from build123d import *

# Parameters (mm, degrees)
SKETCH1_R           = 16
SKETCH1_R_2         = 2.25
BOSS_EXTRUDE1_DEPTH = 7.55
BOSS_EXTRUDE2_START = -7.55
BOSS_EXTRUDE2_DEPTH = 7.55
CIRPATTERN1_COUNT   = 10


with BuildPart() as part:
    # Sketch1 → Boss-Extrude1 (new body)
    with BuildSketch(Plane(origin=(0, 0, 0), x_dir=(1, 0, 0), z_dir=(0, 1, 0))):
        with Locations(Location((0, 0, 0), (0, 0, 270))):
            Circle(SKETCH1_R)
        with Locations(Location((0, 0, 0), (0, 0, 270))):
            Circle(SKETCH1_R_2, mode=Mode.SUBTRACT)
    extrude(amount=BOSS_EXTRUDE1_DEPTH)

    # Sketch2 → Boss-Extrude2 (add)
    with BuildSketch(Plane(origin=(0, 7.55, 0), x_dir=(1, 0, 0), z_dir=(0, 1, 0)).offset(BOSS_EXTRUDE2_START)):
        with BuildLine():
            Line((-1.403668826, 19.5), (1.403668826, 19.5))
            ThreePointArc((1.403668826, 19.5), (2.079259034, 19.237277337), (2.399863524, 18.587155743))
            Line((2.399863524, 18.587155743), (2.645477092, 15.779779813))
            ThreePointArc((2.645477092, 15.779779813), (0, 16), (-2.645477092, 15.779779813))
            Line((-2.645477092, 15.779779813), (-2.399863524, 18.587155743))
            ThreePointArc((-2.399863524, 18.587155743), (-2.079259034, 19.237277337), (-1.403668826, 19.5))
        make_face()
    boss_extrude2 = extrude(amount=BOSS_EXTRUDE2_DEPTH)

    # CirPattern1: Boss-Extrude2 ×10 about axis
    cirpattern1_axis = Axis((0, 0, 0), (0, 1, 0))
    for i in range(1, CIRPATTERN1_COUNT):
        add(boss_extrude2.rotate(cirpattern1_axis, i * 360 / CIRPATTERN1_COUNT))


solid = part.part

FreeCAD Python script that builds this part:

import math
import FreeCAD as App
import Part
import Sketcher

V = App.Vector
Q = App.Units.Quantity

doc = App.newDocument("Part")
body = doc.addObject("PartDesign::Body", "Body")

# Sketch on XZ plane
sketch1 = body.newObject("Sketcher::SketchObject", "Sketch")
sketch1.AttachmentSupport = (doc.getObject("XZ_Plane"), [""])
sketch1.MapMode = "FlatFace"
sketch1.addGeometry(Part.Circle(V(0, 0, 0), V(0, 0, 1), 16), False)
sketch1.addGeometry(Part.Circle(V(0, 0, 0), V(0, 0, 1), 2.2), False)
sketch1.addConstraint(Sketcher.Constraint("Coincident", 0, 3, -1, 1))
sketch1.addConstraint(Sketcher.Constraint("Coincident", 1, 3, -1, 1))
sketch1.addConstraint(Sketcher.Constraint("Diameter", 0, 32.0))
sketch1.addConstraint(Sketcher.Constraint("Diameter", 1, 4.5))
pad1 = body.newObject("PartDesign::Pad", "Pad")
pad1.Profile = sketch1
pad1.Length = 7.55
pad1.Reversed = True

# Sketch on XZ plane
sketch2 = body.newObject("Sketcher::SketchObject", "Sketch001")
sketch2.AttachmentSupport = (doc.getObject("XZ_Plane"), [""])
sketch2.MapMode = "FlatFace"
sketch2.addGeometry(Part.LineSegment(V(1.4, -19.5, 0), V(-1.4, -19.5, 0)), False)
sketch2.addGeometry(Part.ArcOfCircle(Part.Circle(V(-1.4, -18.5, 0), V(0, 0, 1), 1), math.radians(-175), math.radians(-90)), False)
sketch2.addGeometry(Part.LineSegment(V(-2.4, -18.6, 0), V(-2.6, -15.8, 0)), False)
sketch2.addGeometry(Part.ArcOfCircle(Part.Circle(V(0, 0, 0), V(0, 0, 1), 16), math.radians(-99.52), math.radians(-80.48)), False)
sketch2.addGeometry(Part.LineSegment(V(2.6, -15.8, 0), V(2.4, -18.6, 0)), False)
sketch2.addGeometry(Part.ArcOfCircle(Part.Circle(V(1.4, -18.5, 0), V(0, 0, 1), 1), math.radians(-90), math.radians(-5)), False)
sketch2.addConstraint(Sketcher.Constraint("Tangent", 0, 2, 1, 2))
sketch2.addConstraint(Sketcher.Constraint("Tangent", 1, 1, 2, 1))
sketch2.addConstraint(Sketcher.Constraint("Coincident", 2, 2, 3, 1))
sketch2.addConstraint(Sketcher.Constraint("Coincident", 3, 2, 4, 1))
sketch2.addConstraint(Sketcher.Constraint("Tangent", 4, 2, 5, 2))
sketch2.addConstraint(Sketcher.Constraint("Tangent", 5, 1, 0, 1))
sketch2.addConstraint(Sketcher.Constraint("Horizontal", 0))
sketch2.addConstraint(Sketcher.Constraint("Coincident", 3, 3, -1, 1))
sketch2.addConstraint(Sketcher.Constraint("Equal", 1, 5))
sketch2.addConstraint(Sketcher.Constraint("Symmetric", 1, 1, 4, 2, -2))
sketch2.addConstraint(Sketcher.Constraint("Radius", 1, 1.0))
sketch2.addConstraint(Sketcher.Constraint("Radius", 3, 16.0))
sketch2.addConstraint(Sketcher.Constraint("Angle", 2, Q("95 deg")))
sketch2.addConstraint(Sketcher.Constraint("DistanceY", 1, 3, -1, 1, 18.5))
sketch2.addConstraint(Sketcher.Constraint("Distance", 2, 2.8181))
pad2 = body.newObject("PartDesign::Pad", "Pad001")
pad2.Profile = sketch2
pad2.Length = 7.55
pad2.Reversed = True
doc.recompute()

polarpattern = body.newObject("PartDesign::PolarPattern", "PolarPattern")
polarpattern.Originals = [pad2]
polarpattern.Axis = (doc.getObject("Y_Axis"), [""])
polarpattern.Angle = 360
polarpattern.Occurrences = 10
body.Tip = polarpattern

doc.recompute()
